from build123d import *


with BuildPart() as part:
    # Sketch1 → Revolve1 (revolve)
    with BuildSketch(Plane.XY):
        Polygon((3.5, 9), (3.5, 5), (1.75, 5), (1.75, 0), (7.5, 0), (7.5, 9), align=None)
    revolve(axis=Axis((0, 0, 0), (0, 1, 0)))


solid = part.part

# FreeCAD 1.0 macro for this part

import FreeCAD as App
import Part
import Sketcher
from FreeCAD import Vector


def add_polygon(sketch, points):
    """Adds a closed chain of lines whose ends are joined by coincident constraints."""
    first, n = sketch.GeometryCount, len(points)
    for a, b in zip(points, points[1:] + points[:1]):
        sketch.addGeometry(Part.LineSegment(App.Vector(*a, 0), App.Vector(*b, 0)), False)
    for i in range(n):
        sketch.addConstraint(Sketcher.Constraint("Coincident", first + i, 2, first + (i + 1) % n, 1))

doc = App.newDocument("Part")
body = doc.addObject("PartDesign::Body", "Body")

# Sketch on XY plane
sketch1 = body.newObject("Sketcher::SketchObject", "Sketch")
sketch1.AttachmentSupport = (doc.getObject("XY_Plane"), [""])
sketch1.MapMode = "FlatFace"
add_polygon(sketch1, [(3.5, 9), (3.5, 5), (1.8, 5), (1.8, 0), (7.5, 0), (7.5, 9)])  # lines 0-5
sketch1.addConstraint([
    Sketcher.Constraint("Vertical", 0),
    Sketcher.Constraint("Horizontal", 1),
    Sketcher.Constraint("Vertical", 2),
    Sketcher.Constraint("Horizontal", 3),
    Sketcher.Constraint("Vertical", 4),
    Sketcher.Constraint("Horizontal", 5),
    Sketcher.Constraint("PointOnObject", 2, 2, -1),
    Sketcher.Constraint("Equal", 5, 0),
    Sketcher.Constraint("DistanceX", 5, 2, 5, 1, 4.0),
    Sketcher.Constraint("DistanceY", 2, 2, 2, 1, 5.0),
    Sketcher.Constraint("DistanceX", 1, 2, 1, 1, 1.75),
    Sketcher.Constraint("DistanceX", -1, 1, 0, 2, 3.5),
])
revolution = body.newObject("PartDesign::Revolution", "Revolution")
revolution.Profile = sketch1
revolution.ReferenceAxis = (sketch1, ["V_Axis"])
revolution.Angle = 360

doc.recompute()
